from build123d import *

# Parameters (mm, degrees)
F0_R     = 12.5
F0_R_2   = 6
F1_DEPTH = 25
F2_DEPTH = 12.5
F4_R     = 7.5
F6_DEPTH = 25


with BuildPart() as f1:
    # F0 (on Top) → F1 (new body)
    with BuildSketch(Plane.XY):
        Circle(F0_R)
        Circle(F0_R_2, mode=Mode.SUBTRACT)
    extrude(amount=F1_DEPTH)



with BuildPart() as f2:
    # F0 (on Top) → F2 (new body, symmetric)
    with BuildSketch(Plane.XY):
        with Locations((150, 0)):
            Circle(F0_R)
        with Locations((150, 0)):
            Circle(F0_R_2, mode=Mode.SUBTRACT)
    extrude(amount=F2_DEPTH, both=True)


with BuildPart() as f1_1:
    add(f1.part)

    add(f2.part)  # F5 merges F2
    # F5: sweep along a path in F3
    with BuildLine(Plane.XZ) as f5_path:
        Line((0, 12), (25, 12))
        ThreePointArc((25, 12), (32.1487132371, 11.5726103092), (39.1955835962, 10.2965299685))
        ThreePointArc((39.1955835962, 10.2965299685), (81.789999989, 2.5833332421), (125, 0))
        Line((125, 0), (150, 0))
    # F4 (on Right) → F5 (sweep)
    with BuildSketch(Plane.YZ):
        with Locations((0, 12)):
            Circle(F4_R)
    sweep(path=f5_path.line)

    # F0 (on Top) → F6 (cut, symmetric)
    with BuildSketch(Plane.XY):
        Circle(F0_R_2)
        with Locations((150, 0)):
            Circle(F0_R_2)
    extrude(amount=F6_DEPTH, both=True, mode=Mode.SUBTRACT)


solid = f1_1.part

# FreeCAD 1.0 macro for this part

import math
import FreeCAD as App
import Part
import Sketcher
from FreeCAD import Vector
Q = App.Units.Quantity

doc = App.newDocument("Part")
body = doc.addObject("PartDesign::Body", "Body")

# Sketch on XY plane
sketch1 = body.newObject("Sketcher::SketchObject", "Sketch")
sketch1.AttachmentSupport = (doc.getObject("XY_Plane"), [""])
sketch1.MapMode = "FlatFace"
sketch1.addGeometry([
    Part.Circle(Vector(0, 0, 0), Vector(0, 0, 1), 12.5),
    Part.Circle(Vector(0, 0, 0), Vector(0, 0, 1), 6),
], False)
sketch1.addConstraint([
    Sketcher.Constraint("Coincident", 0, 3, -1, 1),
    Sketcher.Constraint("Coincident", 1, 3, -1, 1),
    Sketcher.Constraint("Diameter", 0, Q("25 mm")),
    Sketcher.Constraint("Diameter", 1, Q("12 mm")),
])
pad1 = body.newObject("PartDesign::Pad", "Pad")
pad1.Profile = sketch1
pad1.Length = 25
body2 = doc.addObject("PartDesign::Body", "Body001")

# Sketch on XY plane
sketch2 = body2.newObject("Sketcher::SketchObject", "Sketch001")
sketch2.AttachmentSupport = (doc.getObject("XY_Plane001"), [""])
sketch2.MapMode = "FlatFace"
sketch2.addGeometry([
    Part.Circle(Vector(150, 0, 0), Vector(0, 0, 1), 12.5),
    Part.Circle(Vector(150, 0, 0), Vector(0, 0, 1), 6),
], False)
sketch2.addConstraint([
    Sketcher.Constraint("Coincident", 1, 3, 0, 3),
    Sketcher.Constraint("PointOnObject", 0, 3, -1),
    Sketcher.Constraint("Diameter", 0, Q("25 mm")),
    Sketcher.Constraint("Diameter", 1, Q("12 mm")),
    Sketcher.Constraint("DistanceX", -1, 1, 0, 3, Q("150 mm")),
])
pad2 = body2.newObject("PartDesign::Pad", "Pad001")
pad2.Profile = sketch2
pad2.Length = 25
pad2.Midplane = True
body.AllowCompound = True
doc.recompute()

boolean = body.newObject("PartDesign::Boolean", "Boolean")
boolean.Type = "Fuse"
boolean.addObjects([body2])

# Sketch on YZ plane
sketch3 = body.newObject("Sketcher::SketchObject", "Sketch002")
sketch3.AttachmentSupport = (doc.getObject("YZ_Plane"), [""])
sketch3.MapMode = "FlatFace"
sketch3.addGeometry(Part.Circle(Vector(0, 12, 0), Vector(0, 0, 1), 7.5), False)
sketch3.addConstraint([
    Sketcher.Constraint("PointOnObject", 0, 3, -2),
    Sketcher.Constraint("Diameter", 0, Q("15 mm")),
    Sketcher.Constraint("DistanceY", -1, 1, 0, 3, Q("12 mm")),
])

# Sketch on XZ plane
sketch4 = body.newObject("Sketcher::SketchObject", "Sketch003")
sketch4.AttachmentSupport = (doc.getObject("XZ_Plane"), [""])
sketch4.MapMode = "FlatFace"
sketch4.addGeometry([
    Part.LineSegment(Vector(0, 12, 0), Vector(25, 12, 0)),
    Part.ArcOfCircle(Part.Circle(Vector(25, -48, 0), Vector(0, 0, 1), 60), math.radians(76.314453), math.radians(90)),
    Part.ArcOfCircle(Part.Circle(Vector(125, 362.666667, 0), Vector(0, 0, 1), 362.666667), math.radians(-103.685547), math.radians(-90)),
    Part.LineSegment(Vector(125, 0, 0), Vector(150, 0, 0)),
], False)
sketch4.addConstraint([
    Sketcher.Constraint("Tangent", 0, 2, 1, 2),
    Sketcher.Constraint("Tangent", 1, 1, 2, 1),
    Sketcher.Constraint("Tangent", 2, 2, 3, 1),
    Sketcher.Constraint("Horizontal", 0),
    Sketcher.Constraint("Horizontal", 3),
    Sketcher.Constraint("PointOnObject", 0, 1, -2),
    Sketcher.Constraint("PointOnObject", 2, 2, -1),
    Sketcher.Constraint("Equal", 0, 3),
    Sketcher.Constraint("Radius", 1, Q("60 mm")),
    Sketcher.Constraint("DistanceX", 0, 1, 0, 2, Q("25 mm")),
    Sketcher.Constraint("DistanceY", 1, 3, -1, 1, Q("48 mm")),
    Sketcher.Constraint("DistanceX", -1, 1, 2, 3, Q("125 mm")),
])
doc.recompute()

additivepipe = body.newObject("PartDesign::AdditivePipe", "AdditivePipe")
additivepipe.Profile = sketch3
additivepipe.Spine = (sketch4, ["Edge1", "Edge2", "Edge3", "Edge4"])

# Sketch on XY plane
sketch5 = body.newObject("Sketcher::SketchObject", "Sketch004")
sketch5.AttachmentSupport = (doc.getObject("XY_Plane"), [""])
sketch5.MapMode = "FlatFace"
sketch5.addGeometry([
    Part.Circle(Vector(0, 0, 0), Vector(0, 0, 1), 6),
    Part.Circle(Vector(150, 0, 0), Vector(0, 0, 1), 6),
], False)
sketch5.addConstraint([
    Sketcher.Constraint("Coincident", 0, 3, -1, 1),
    Sketcher.Constraint("Equal", 0, 1),
    Sketcher.Constraint("PointOnObject", 1, 3, -1),
    Sketcher.Constraint("Diameter", 0, Q("12 mm")),
    Sketcher.Constraint("DistanceX", -1, 1, 1, 3, Q("150 mm")),
])
pocket1 = body.newObject("PartDesign::Pocket", "Pocket")
pocket1.Profile = sketch5
pocket1.Length = 50
pocket1.Midplane = True

doc.recompute()
